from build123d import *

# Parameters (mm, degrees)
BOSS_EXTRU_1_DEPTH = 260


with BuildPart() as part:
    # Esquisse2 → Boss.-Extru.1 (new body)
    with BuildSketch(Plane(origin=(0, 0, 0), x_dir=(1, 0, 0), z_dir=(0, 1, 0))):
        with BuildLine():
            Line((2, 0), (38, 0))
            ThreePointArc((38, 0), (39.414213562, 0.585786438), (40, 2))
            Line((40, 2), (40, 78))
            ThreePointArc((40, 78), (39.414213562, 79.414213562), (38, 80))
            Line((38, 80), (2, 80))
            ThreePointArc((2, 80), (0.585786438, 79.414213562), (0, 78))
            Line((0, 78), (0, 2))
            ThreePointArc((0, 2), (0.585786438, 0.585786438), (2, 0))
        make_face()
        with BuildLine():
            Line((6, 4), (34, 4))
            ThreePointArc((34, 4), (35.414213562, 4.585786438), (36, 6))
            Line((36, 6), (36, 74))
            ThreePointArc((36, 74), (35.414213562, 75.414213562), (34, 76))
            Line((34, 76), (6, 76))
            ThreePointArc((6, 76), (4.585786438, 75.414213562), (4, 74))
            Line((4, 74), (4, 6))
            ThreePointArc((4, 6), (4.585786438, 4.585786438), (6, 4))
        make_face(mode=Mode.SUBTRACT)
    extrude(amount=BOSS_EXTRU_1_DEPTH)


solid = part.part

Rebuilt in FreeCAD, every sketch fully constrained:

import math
import FreeCAD as App
import Part
import Sketcher
Q = App.Units.Quantity

doc = App.newDocument("Part")
body = doc.addObject("PartDesign::Body", "Body")

# Sketch on XZ plane
sketch1 = body.newObject("Sketcher::SketchObject", "Sketch")
sketch1.AttachmentSupport = (doc.getObject("XZ_Plane"), [""])
sketch1.MapMode = "FlatFace"
sketch1.addGeometry(Part.LineSegment(App.Vector(2, 0, 0), App.Vector(38, 0, 0)), False)
sketch1.addGeometry(Part.ArcOfCircle(Part.Circle(App.Vector(38, -2, 0), App.Vector(0, 0, 1), 2), math.radians(0), math.radians(90)), False)
sketch1.addGeometry(Part.LineSegment(App.Vector(40, -2, 0), App.Vector(40, -78, 0)), False)
sketch1.addGeometry(Part.ArcOfCircle(Part.Circle(App.Vector(38, -78, 0), App.Vector(0, 0, 1), 2), math.radians(-90), math.radians(0)), False)
sketch1.addGeometry(Part.LineSegment(App.Vector(38, -80, 0), App.Vector(2, -80, 0)), False)
sketch1.addGeometry(Part.ArcOfCircle(Part.Circle(App.Vector(2, -78, 0), App.Vector(0, 0, 1), 2), math.radians(-180), math.radians(-90)), False)
sketch1.addGeometry(Part.LineSegment(App.Vector(0, -78, 0), App.Vector(0, -2, 0)), False)
sketch1.addGeometry(Part.ArcOfCircle(Part.Circle(App.Vector(2, -2, 0), App.Vector(0, 0, 1), 2), math.radians(90), math.radians(180)), False)
sketch1.addGeometry(Part.LineSegment(App.Vector(34, -4, 0), App.Vector(6, -4, 0)), False)
sketch1.addGeometry(Part.ArcOfCircle(Part.Circle(App.Vector(6, -6, 0), App.Vector(0, 0, 1), 2), math.radians(90), math.radians(180)), False)
sketch1.addGeometry(Part.LineSegment(App.Vector(4, -6, 0), App.Vector(4, -74, 0)), False)
sketch1.addGeometry(Part.ArcOfCircle(Part.Circle(App.Vector(6, -74, 0), App.Vector(0, 0, 1), 2), math.radians(-180), math.radians(-90)), False)
sketch1.addGeometry(Part.LineSegment(App.Vector(6, -76, 0), App.Vector(34, -76, 0)), False)
sketch1.addGeometry(Part.ArcOfCircle(Part.Circle(App.Vector(34, -74, 0), App.Vector(0, 0, 1), 2), math.radians(-90), math.radians(0)), False)
sketch1.addGeometry(Part.LineSegment(App.Vector(36, -74, 0), App.Vector(36, -6, 0)), False)
sketch1.addGeometry(Part.ArcOfCircle(Part.Circle(App.Vector(34, -6, 0), App.Vector(0, 0, 1), 2), math.radians(0), math.radians(90)), False)
sketch1.addConstraint(Sketcher.Constraint("Tangent", 0, 2, 1, 2))
sketch1.addConstraint(Sketcher.Constraint("Tangent", 1, 1, 2, 1))
sketch1.addConstraint(Sketcher.Constraint("Tangent", 2, 2, 3, 2))
sketch1.addConstraint(Sketcher.Constraint("Tangent", 3, 1, 4, 1))
sketch1.addConstraint(Sketcher.Constraint("Tangent", 4, 2, 5, 2))
sketch1.addConstraint(Sketcher.Constraint("Tangent", 5, 1, 6, 1))
sketch1.addConstraint(Sketcher.Constraint("Tangent", 6, 2, 7, 2))
sketch1.addConstraint(Sketcher.Constraint("Tangent", 7, 1, 0, 1))
sketch1.addConstraint(Sketcher.Constraint("Tangent", 8, 2, 9, 1))
sketch1.addConstraint(Sketcher.Constraint("Tangent", 9, 2, 10, 1))
sketch1.addConstraint(Sketcher.Constraint("Tangent", 10, 2, 11, 1))
sketch1.addConstraint(Sketcher.Constraint("Tangent", 11, 2, 12, 1))
sketch1.addConstraint(Sketcher.Constraint("Tangent", 12, 2, 13, 1))
sketch1.addConstraint(Sketcher.Constraint("Tangent", 13, 2, 14, 1))
sketch1.addConstraint(Sketcher.Constraint("Tangent", 14, 2, 15, 1))
sketch1.addConstraint(Sketcher.Constraint("Tangent", 15, 2, 8, 1))
sketch1.addConstraint(Sketcher.Constraint("Horizontal", 0))
sketch1.addConstraint(Sketcher.Constraint("Vertical", 2))
sketch1.addConstraint(Sketcher.Constraint("Horizontal", 4))
sketch1.addConstraint(Sketcher.Constraint("Vertical", 6))
sketch1.addConstraint(Sketcher.Constraint("Horizontal", 8))
sketch1.addConstraint(Sketcher.Constraint("Vertical", 10))
sketch1.addConstraint(Sketcher.Constraint("Horizontal", 12))
sketch1.addConstraint(Sketcher.Constraint("Vertical", 14))
sketch1.addConstraint(Sketcher.Constraint("Equal", 1, 3))
sketch1.addConstraint(Sketcher.Constraint("Equal", 3, 5))
sketch1.addConstraint(Sketcher.Constraint("Equal", 5, 7))
sketch1.addConstraint(Sketcher.Constraint("Equal", 7, 9))
sketch1.addConstraint(Sketcher.Constraint("Equal", 9, 11))
sketch1.addConstraint(Sketcher.Constraint("Equal", 11, 13))
sketch1.addConstraint(Sketcher.Constraint("Equal", 13, 15))
sketch1.addConstraint(Sketcher.Constraint("PointOnObject", 0, 2, -1))
sketch1.addConstraint(Sketcher.Constraint("PointOnObject", 5, 1, -2))
sketch1.addConstraint(Sketcher.Constraint("Radius", 1, Q("2 mm")))
sketch1.addConstraint(Sketcher.Constraint("DistanceX", 0, 1, 0, 2, Q("36 mm")))
sketch1.addConstraint(Sketcher.Constraint("DistanceX", 8, 2, 8, 1, Q("28 mm")))
sketch1.addConstraint(Sketcher.Constraint("DistanceY", 2, 2, 2, 1, Q("76 mm")))
sketch1.addConstraint(Sketcher.Constraint("DistanceY", 10, 2, 10, 1, Q("68 mm")))
sketch1.addConstraint(Sketcher.Constraint("DistanceX", -1, 1, 9, 3, Q("6 mm")))
sketch1.addConstraint(Sketcher.Constraint("DistanceY", 9, 3, -1, 1, Q("6 mm")))
pad1 = body.newObject("PartDesign::Pad", "Pad")
pad1.Profile = sketch1
pad1.Length = 260
pad1.Reversed = True

doc.recompute()
